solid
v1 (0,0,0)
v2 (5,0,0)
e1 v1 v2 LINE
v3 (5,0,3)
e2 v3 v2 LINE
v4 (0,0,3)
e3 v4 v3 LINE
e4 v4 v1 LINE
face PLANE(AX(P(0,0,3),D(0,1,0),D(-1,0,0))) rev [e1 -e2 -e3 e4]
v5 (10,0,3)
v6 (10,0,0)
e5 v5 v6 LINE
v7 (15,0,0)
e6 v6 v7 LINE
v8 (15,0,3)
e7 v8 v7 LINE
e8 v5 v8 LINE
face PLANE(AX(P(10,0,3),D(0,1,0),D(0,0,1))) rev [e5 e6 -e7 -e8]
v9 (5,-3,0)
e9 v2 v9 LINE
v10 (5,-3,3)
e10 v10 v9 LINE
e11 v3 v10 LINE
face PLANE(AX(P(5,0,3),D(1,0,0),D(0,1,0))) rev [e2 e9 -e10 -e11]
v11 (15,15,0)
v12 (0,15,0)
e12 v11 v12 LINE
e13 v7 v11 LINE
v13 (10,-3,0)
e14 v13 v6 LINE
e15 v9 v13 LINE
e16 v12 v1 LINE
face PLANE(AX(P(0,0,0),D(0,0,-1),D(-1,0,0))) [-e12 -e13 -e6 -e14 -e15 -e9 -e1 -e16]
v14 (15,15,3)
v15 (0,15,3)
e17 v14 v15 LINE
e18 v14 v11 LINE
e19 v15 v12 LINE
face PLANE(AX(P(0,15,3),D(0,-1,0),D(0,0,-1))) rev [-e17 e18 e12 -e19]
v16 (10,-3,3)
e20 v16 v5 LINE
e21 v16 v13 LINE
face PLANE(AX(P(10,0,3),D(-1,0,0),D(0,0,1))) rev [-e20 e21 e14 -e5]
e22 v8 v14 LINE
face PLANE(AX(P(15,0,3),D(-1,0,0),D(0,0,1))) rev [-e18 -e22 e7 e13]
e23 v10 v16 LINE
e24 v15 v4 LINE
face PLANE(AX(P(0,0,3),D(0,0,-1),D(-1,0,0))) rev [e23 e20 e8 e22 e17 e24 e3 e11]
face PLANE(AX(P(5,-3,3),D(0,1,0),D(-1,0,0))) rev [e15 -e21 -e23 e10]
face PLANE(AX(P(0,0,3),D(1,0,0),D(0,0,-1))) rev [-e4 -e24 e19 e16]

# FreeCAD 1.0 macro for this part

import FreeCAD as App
import Part
import Sketcher

V = App.Vector
Q = App.Units.Quantity


def add_polygon(sketch, points):
    """Adds a closed chain of lines whose ends are joined by coincident constraints."""
    first, n = sketch.GeometryCount, len(points)
    for a, b in zip(points, points[1:] + points[:1]):
        sketch.addGeometry(Part.LineSegment(App.Vector(*a, 0), App.Vector(*b, 0)), False)
    for i in range(n):
        sketch.addConstraint(Sketcher.Constraint("Coincident", first + i, 2, first + (i + 1) % n, 1))

doc = App.newDocument("Part")
body = doc.addObject("PartDesign::Body", "Body")

sketch1 = body.newObject("Sketcher::SketchObject", "Sketch")
sketch1.AttachmentSupport = (doc.getObject("XY_Plane"), [""])
sketch1.MapMode = "FlatFace"
add_polygon(sketch1, [(10, 0), (15, 0), (15, 15), (0, 15), (0, 0), (5, 0), (5, -3), (10, -3)])
sketch1.addConstraint([
    Sketcher.Constraint("Horizontal", 0),
    Sketcher.Constraint("Vertical", 1),
    Sketcher.Constraint("Horizontal", 2),
    Sketcher.Constraint("Vertical", 3),
    Sketcher.Constraint("Horizontal", 4),
    Sketcher.Constraint("Vertical", 5),
    Sketcher.Constraint("Horizontal", 6),
    Sketcher.Constraint("Vertical", 7),
    Sketcher.Constraint("Coincident", 3, 2, -1, 1),
    Sketcher.Constraint("PointOnObject", 0, 2, -1),
    Sketcher.Constraint("Equal", 0, 4),
    Sketcher.Constraint("Equal", 4, 6),
    Sketcher.Constraint("Equal", 2, 1),
    Sketcher.Constraint("DistanceX", 0, 1, 0, 2, Q("5 mm")),
    Sketcher.Constraint("DistanceY", 5, 2, 5, 1, Q("3 mm")),
])
pad1 = body.newObject("PartDesign::Pad", "Pad")
pad1.Profile = sketch1
pad1.Length = 3

doc.recompute()
